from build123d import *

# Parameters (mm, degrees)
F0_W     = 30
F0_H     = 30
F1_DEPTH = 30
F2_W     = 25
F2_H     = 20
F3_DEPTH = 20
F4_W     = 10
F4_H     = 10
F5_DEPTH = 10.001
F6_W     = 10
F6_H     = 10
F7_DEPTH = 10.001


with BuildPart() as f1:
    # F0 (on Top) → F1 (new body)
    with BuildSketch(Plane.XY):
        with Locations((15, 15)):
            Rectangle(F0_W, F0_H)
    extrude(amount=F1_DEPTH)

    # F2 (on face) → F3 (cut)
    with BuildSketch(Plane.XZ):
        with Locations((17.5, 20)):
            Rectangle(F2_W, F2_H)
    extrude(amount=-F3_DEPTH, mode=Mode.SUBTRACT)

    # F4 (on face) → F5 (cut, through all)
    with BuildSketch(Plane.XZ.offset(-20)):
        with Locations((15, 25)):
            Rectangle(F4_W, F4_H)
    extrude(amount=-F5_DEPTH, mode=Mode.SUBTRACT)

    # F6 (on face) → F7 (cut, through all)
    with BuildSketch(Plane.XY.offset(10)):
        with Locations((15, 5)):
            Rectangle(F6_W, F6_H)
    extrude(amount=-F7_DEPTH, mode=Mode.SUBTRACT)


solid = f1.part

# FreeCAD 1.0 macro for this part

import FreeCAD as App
import Part
import Sketcher

V = App.Vector


def add_polygon(sketch, points):
    """Adds a closed chain of lines whose ends are joined by coincident constraints."""
    first, n = sketch.GeometryCount, len(points)
    for a, b in zip(points, points[1:] + points[:1]):
        sketch.addGeometry(Part.LineSegment(App.Vector(*a, 0), App.Vector(*b, 0)), False)
    for i in range(n):
        sketch.addConstraint(Sketcher.Constraint("Coincident", first + i, 2, first + (i + 1) % n, 1))

doc = App.newDocument("Part")
params = doc.addObject("Spreadsheet::Sheet", "Params")
for row, (alias, value) in enumerate([
    ("sketch1_width", "30 mm"),
    ("pad1_length", "30 mm"),
    ("sketch2_width", "25 mm"),
    ("sketch2_height", "20 mm"),
    ("pocket1_length", "20 mm"),
    ("sketch3_width", "10 mm"),
    ("sketch4_width", "10 mm"),
], start=1):
    params.set(f"A{row}", alias)
    params.set(f"B{row}", "=" + value)
    params.setAlias(f"B{row}", alias)

body = doc.addObject("PartDesign::Body", "Body")

# Sketch on XY plane
sketch1 = body.newObject("Sketcher::SketchObject", "Sketch")
sketch1.AttachmentSupport = (doc.getObject("XY_Plane"), [""])
sketch1.MapMode = "FlatFace"
add_polygon(sketch1, [(0, 30), (0, 0), (30, 0), (30, 30)])  # lines 0-3
sketch1.addConstraint([
    Sketcher.Constraint("Vertical", 0),
    Sketcher.Constraint("Horizontal", 1),
    Sketcher.Constraint("Vertical", 2),
    Sketcher.Constraint("Horizontal", 3),
    Sketcher.Constraint("Coincident", 0, 2, -1, 1),
    Sketcher.Constraint("Equal", 3, 0),
    Sketcher.Constraint("DistanceX", 1, 1, 1, 2, 30.0),
])
sketch1.setExpression("Constraints[10]", "Params.sketch1_width")
pad1 = body.newObject("PartDesign::Pad", "Pad")
pad1.Profile = sketch1
pad1.setExpression("Length", "Params.pad1_length")

# Sketch on XZ plane
sketch2 = body.newObject("Sketcher::SketchObject", "Sketch001")
sketch2.AttachmentSupport = (doc.getObject("XZ_Plane"), [""])
sketch2.MapMode = "FlatFace"
add_polygon(sketch2, [(5, 30), (5, 10), (30, 10), (30, 30)])  # lines 0-3
sketch2.addConstraint([
    Sketcher.Constraint("Vertical", 0),
    Sketcher.Constraint("Horizontal", 1),
    Sketcher.Constraint("Vertical", 2),
    Sketcher.Constraint("Horizontal", 3),
    Sketcher.Constraint("DistanceX", 1, 1, 1, 2, 25.0),
    Sketcher.Constraint("DistanceY", 0, 2, 0, 1, 20.0),
    Sketcher.Constraint("DistanceX", -1, 1, 0, 2, 5.0),
    Sketcher.Constraint("DistanceY", -1, 1, 0, 2, 10.0),
])
sketch2.setExpression("Constraints[8]", "Params.sketch2_width")
sketch2.setExpression("Constraints[9]", "Params.sketch2_height")
pocket1 = body.newObject("PartDesign::Pocket", "Pocket")
pocket1.Profile = sketch2
pocket1.setExpression("Length", "Params.pocket1_length")

# Sketch on XZ plane
sketch3 = body.newObject("Sketcher::SketchObject", "Sketch002")
sketch3.AttachmentSupport = (doc.getObject("XZ_Plane"), [""])
sketch3.MapMode = "FlatFace"
sketch3.AttachmentOffset = App.Placement(V(0, 0, -20), App.Rotation())
add_polygon(sketch3, [(10, 30), (10, 20), (20, 20), (20, 30)])  # lines 0-3
sketch3.addConstraint([
    Sketcher.Constraint("Vertical", 0),
    Sketcher.Constraint("Horizontal", 1),
    Sketcher.Constraint("Vertical", 2),
    Sketcher.Constraint("Horizontal", 3),
    Sketcher.Constraint("Equal", 3, 0),
    Sketcher.Constraint("DistanceX", 1, 1, 1, 2, 10.0),
    Sketcher.Constraint("DistanceX", -1, 1, 0, 2, 10.0),
    Sketcher.Constraint("DistanceY", -1, 1, 0, 2, 20.0),
])
sketch3.setExpression("Constraints[9]", "Params.sketch3_width")
pocket2 = body.newObject("PartDesign::Pocket", "Pocket001")
pocket2.Profile = sketch3
pocket2.Type = "ThroughAll"

# Sketch on XY plane
sketch4 = body.newObject("Sketcher::SketchObject", "Sketch003")
sketch4.AttachmentSupport = (doc.getObject("XY_Plane"), [""])
sketch4.MapMode = "FlatFace"
sketch4.AttachmentOffset = App.Placement(V(0, 0, 10), App.Rotation())
add_polygon(sketch4, [(10, 10), (10, 0), (20, 0), (20, 10)])  # lines 0-3
sketch4.addConstraint([
    Sketcher.Constraint("Vertical", 0),
    Sketcher.Constraint("Horizontal", 1),
    Sketcher.Constraint("Vertical", 2),
    Sketcher.Constraint("Horizontal", 3),
    Sketcher.Constraint("PointOnObject", 0, 2, -1),
    Sketcher.Constraint("Equal", 3, 0),
    Sketcher.Constraint("DistanceX", 1, 1, 1, 2, 10.0),
    Sketcher.Constraint("DistanceX", -1, 1, 0, 2, 10.0),
])
sketch4.setExpression("Constraints[10]", "Params.sketch4_width")
pocket3 = body.newObject("PartDesign::Pocket", "Pocket002")
pocket3.Profile = sketch4
pocket3.Type = "ThroughAll"

doc.recompute()
